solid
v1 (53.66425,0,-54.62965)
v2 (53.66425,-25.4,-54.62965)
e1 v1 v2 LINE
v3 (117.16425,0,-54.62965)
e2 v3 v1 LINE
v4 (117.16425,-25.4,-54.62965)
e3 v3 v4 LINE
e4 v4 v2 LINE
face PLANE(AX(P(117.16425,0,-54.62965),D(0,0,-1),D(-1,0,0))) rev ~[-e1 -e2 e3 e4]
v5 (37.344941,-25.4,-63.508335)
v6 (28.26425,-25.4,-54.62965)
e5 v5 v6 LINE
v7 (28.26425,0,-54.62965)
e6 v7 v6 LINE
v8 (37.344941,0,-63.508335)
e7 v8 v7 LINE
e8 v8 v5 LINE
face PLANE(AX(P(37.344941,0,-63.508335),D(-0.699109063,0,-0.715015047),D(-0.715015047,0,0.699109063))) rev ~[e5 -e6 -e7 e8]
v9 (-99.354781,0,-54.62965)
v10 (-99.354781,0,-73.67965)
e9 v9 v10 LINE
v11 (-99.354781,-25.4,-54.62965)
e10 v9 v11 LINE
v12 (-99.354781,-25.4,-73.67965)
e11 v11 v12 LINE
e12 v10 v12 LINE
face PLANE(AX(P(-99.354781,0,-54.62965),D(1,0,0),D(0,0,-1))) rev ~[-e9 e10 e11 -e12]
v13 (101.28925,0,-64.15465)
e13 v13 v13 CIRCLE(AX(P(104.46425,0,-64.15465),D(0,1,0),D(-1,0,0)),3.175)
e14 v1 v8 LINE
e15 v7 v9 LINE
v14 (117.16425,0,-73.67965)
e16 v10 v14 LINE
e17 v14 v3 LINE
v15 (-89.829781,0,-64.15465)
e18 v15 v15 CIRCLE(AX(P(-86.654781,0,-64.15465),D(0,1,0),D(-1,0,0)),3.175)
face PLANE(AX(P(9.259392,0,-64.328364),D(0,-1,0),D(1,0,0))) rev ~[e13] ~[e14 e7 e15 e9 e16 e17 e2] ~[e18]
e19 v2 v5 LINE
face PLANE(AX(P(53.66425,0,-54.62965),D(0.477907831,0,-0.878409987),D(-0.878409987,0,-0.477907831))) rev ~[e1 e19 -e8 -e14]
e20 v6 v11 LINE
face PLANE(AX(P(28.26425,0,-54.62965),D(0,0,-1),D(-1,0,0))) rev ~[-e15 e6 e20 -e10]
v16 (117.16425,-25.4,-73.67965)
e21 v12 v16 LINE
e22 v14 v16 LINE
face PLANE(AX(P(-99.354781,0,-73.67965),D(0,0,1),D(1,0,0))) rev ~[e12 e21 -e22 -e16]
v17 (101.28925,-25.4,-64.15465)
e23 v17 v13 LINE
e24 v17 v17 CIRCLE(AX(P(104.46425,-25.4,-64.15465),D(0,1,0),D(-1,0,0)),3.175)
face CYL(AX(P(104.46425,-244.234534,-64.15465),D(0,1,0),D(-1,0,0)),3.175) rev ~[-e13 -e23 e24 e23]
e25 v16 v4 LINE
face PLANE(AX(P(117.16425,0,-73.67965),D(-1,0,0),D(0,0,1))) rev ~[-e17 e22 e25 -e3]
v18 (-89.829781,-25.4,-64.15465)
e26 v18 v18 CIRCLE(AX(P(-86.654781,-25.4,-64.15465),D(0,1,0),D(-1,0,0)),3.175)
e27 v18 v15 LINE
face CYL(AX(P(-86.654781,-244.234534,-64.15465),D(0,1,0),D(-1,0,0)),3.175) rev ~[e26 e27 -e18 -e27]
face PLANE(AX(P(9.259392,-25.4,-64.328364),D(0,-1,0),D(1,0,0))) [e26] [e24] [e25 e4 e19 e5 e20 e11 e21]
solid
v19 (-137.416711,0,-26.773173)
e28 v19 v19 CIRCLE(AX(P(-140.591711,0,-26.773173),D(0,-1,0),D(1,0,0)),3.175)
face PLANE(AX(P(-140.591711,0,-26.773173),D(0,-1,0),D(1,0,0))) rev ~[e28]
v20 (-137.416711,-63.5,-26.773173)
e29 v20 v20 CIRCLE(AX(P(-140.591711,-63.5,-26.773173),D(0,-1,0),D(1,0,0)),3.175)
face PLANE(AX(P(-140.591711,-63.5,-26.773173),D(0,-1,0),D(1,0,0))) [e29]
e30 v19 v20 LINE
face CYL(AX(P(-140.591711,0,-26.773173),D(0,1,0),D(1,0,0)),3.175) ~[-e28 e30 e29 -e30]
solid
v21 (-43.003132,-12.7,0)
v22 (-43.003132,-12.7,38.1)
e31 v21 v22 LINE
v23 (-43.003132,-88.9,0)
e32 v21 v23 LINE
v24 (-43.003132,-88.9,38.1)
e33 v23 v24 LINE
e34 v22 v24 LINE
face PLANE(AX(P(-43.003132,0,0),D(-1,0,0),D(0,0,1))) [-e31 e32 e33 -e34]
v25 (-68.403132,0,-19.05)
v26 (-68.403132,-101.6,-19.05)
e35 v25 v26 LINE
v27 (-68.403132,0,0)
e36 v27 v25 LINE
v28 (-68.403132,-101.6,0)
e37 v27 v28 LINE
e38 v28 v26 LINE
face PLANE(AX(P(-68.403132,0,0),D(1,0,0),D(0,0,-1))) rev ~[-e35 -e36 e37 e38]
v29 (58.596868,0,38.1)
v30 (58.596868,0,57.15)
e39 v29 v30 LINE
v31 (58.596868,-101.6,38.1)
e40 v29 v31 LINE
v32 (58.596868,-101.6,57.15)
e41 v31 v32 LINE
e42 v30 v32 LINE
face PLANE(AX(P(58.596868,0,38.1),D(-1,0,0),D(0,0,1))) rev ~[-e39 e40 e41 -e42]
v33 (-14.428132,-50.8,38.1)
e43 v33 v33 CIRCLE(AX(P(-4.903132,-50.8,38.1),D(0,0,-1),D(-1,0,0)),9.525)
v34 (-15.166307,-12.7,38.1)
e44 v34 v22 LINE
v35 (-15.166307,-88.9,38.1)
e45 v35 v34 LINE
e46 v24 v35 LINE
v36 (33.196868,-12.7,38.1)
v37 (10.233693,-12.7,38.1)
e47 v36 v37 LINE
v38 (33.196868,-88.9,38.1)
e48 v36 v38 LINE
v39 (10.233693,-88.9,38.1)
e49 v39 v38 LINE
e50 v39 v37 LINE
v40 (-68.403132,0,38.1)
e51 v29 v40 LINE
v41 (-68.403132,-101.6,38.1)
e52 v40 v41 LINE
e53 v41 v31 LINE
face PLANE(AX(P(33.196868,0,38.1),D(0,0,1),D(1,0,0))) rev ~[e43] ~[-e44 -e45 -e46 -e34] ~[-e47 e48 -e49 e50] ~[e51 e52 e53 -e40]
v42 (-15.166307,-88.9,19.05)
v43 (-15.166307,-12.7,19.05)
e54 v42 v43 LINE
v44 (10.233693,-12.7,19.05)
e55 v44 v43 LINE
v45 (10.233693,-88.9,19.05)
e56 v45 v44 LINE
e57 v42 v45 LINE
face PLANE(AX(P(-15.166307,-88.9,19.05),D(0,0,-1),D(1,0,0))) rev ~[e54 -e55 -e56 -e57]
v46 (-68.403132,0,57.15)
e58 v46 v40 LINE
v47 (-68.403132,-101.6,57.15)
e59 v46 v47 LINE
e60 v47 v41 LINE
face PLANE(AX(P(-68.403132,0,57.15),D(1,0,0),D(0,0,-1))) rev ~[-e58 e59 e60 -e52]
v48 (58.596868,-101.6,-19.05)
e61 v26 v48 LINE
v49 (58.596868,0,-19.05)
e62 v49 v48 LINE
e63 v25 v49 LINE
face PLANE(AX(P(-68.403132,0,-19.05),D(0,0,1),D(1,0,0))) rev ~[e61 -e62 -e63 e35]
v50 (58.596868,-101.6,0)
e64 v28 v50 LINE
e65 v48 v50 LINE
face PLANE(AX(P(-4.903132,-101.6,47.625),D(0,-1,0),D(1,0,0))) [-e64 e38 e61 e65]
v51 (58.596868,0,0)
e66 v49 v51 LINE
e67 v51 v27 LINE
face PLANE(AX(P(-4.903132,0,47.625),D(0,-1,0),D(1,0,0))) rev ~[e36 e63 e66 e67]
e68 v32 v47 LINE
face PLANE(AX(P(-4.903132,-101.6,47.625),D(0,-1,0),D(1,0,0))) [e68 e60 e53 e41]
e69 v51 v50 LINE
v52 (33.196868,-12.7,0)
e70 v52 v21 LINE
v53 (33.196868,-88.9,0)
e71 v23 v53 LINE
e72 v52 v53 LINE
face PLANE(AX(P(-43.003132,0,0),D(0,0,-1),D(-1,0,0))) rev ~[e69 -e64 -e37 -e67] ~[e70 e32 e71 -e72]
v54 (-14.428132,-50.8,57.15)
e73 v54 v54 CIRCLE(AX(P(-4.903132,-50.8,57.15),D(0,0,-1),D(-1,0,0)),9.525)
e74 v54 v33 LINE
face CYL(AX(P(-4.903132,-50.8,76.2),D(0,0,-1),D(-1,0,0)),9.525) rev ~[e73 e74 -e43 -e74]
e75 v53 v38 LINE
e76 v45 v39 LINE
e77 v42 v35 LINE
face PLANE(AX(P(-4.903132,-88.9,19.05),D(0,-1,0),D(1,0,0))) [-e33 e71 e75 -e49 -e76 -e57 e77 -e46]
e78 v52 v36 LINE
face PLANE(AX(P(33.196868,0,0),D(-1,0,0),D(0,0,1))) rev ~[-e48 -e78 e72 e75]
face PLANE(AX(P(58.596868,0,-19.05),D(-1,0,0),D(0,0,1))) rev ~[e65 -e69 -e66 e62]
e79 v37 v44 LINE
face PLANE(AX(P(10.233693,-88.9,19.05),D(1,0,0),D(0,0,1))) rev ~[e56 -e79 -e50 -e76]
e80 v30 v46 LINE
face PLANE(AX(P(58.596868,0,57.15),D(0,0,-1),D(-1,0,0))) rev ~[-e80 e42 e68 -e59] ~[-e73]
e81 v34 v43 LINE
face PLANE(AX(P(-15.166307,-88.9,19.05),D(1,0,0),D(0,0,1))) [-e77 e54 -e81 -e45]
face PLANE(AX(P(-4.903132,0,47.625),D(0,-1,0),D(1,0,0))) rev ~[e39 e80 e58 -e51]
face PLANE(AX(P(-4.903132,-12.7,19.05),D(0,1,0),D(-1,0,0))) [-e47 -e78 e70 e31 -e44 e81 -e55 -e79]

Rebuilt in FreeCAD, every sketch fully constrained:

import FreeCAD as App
import Part
import Sketcher
Q = App.Units.Quantity


def add_polygon(sketch, points):
    """Adds a closed chain of lines whose ends are joined by coincident constraints."""
    first, n = sketch.GeometryCount, len(points)
    for a, b in zip(points, points[1:] + points[:1]):
        sketch.addGeometry(Part.LineSegment(App.Vector(*a, 0), App.Vector(*b, 0)), False)
    for i in range(n):
        sketch.addConstraint(Sketcher.Constraint("Coincident", first + i, 2, first + (i + 1) % n, 1))

doc = App.newDocument("Part")
body = doc.addObject("PartDesign::Body", "Body")

# Sketch on XZ plane
sketch1 = body.newObject("Sketcher::SketchObject", "Sketch")
sketch1.AttachmentSupport = (doc.getObject("XZ_Plane"), [""])
sketch1.MapMode = "FlatFace"
add_polygon(sketch1, [(59, 57), (-68, 57), (-68, 38), (-43, 38), (-43, 0), (-68, 0), (-68, -19), (59, -19), (59, 0), (33, 0), (33, 38), (59, 38)])  # lines 0-11
sketch1.addConstraint(Sketcher.Constraint("Horizontal", 0))
sketch1.addConstraint(Sketcher.Constraint("Vertical", 1))
sketch1.addConstraint(Sketcher.Constraint("Horizontal", 2))
sketch1.addConstraint(Sketcher.Constraint("Vertical", 3))
sketch1.addConstraint(Sketcher.Constraint("Horizontal", 4))
sketch1.addConstraint(Sketcher.Constraint("Vertical", 5))
sketch1.addConstraint(Sketcher.Constraint("Horizontal", 6))
sketch1.addConstraint(Sketcher.Constraint("Vertical", 7))
sketch1.addConstraint(Sketcher.Constraint("Horizontal", 8))
sketch1.addConstraint(Sketcher.Constraint("Vertical", 9))
sketch1.addConstraint(Sketcher.Constraint("Horizontal", 10))
sketch1.addConstraint(Sketcher.Constraint("Vertical", 11))
sketch1.addConstraint(Sketcher.Constraint("PointOnObject", 3, 2, -1))
sketch1.addConstraint(Sketcher.Constraint("PointOnObject", 7, 2, -1))
sketch1.addConstraint(Sketcher.Constraint("Horizontal", 2, 2, 9, 2))
sketch1.addConstraint(Sketcher.Constraint("Vertical", 1, 2, 4, 2))
sketch1.addConstraint(Sketcher.Constraint("Vertical", 7, 2, 10, 2))
sketch1.addConstraint(Sketcher.Constraint("Equal", 4, 8))
sketch1.addConstraint(Sketcher.Constraint("Equal", 1, 5))
sketch1.addConstraint(Sketcher.Constraint("DistanceX", 0, 2, 0, 1, Q("5 in")))
sketch1.addConstraint(Sketcher.Constraint("DistanceX", 2, 1, 2, 2, Q("1 in")))
sketch1.addConstraint(Sketcher.Constraint("DistanceY", 3, 2, 3, 1, Q("1.5 in")))
sketch1.addConstraint(Sketcher.Constraint("DistanceY", 5, 2, 0, 2, Q("3 in")))
sketch1.addConstraint(Sketcher.Constraint("DistanceX", 0, 2, -1, 1, 68.403132))
pad1 = body.newObject("PartDesign::Pad", "Pad")
pad1.Profile = sketch1
pad1.Length = Q("4 in")

# Sketch on XZ plane
sketch2 = body.newObject("Sketcher::SketchObject", "Sketch001")
sketch2.AttachmentSupport = (doc.getObject("XZ_Plane"), [""])
sketch2.MapMode = "FlatFace"
sketch2.AttachmentOffset = App.Placement(App.Vector(0, 0, 4 * 25.4), App.Rotation())
add_polygon(sketch2, [(-43, 38), (-43, 0), (33, 0), (33, 38)])  # lines 0-3
sketch2.addConstraint(Sketcher.Constraint("Vertical", 0))
sketch2.addConstraint(Sketcher.Constraint("Horizontal", 1))
sketch2.addConstraint(Sketcher.Constraint("Vertical", 2))
sketch2.addConstraint(Sketcher.Constraint("Horizontal", 3))
sketch2.addConstraint(Sketcher.Constraint("PointOnObject", 0, 2, -1))
sketch2.addConstraint(Sketcher.Constraint("DistanceX", 1, 1, 1, 2, Q("3 in")))
sketch2.addConstraint(Sketcher.Constraint("DistanceY", 0, 2, 0, 1, Q("1.5 in")))
sketch2.addConstraint(Sketcher.Constraint("DistanceX", -1, 1, 1, 2, 33.196868))
pocket1 = body.newObject("PartDesign::Pocket", "Pocket")
pocket1.Profile = sketch2
pocket1.Length = Q("0.5 in")

# Sketch on XZ plane
sketch3 = body.newObject("Sketcher::SketchObject", "Sketch002")
sketch3.AttachmentSupport = (doc.getObject("XZ_Plane"), [""])
sketch3.MapMode = "FlatFace"
add_polygon(sketch3, [(33, 38), (33, 0), (-43, 0), (-43, 38)])  # lines 0-3
sketch3.addConstraint(Sketcher.Constraint("Vertical", 0))
sketch3.addConstraint(Sketcher.Constraint("Horizontal", 1))
sketch3.addConstraint(Sketcher.Constraint("Vertical", 2))
sketch3.addConstraint(Sketcher.Constraint("Horizontal", 3))
sketch3.addConstraint(Sketcher.Constraint("PointOnObject", 0, 2, -1))
sketch3.addConstraint(Sketcher.Constraint("DistanceX", 1, 2, 1, 1, Q("3 in")))
sketch3.addConstraint(Sketcher.Constraint("DistanceY", 0, 2, 0, 1, Q("1.5 in")))
sketch3.addConstraint(Sketcher.Constraint("DistanceX", -1, 1, 0, 2, 33.196868))
pocket2 = body.newObject("PartDesign::Pocket", "Pocket001")
pocket2.Profile = sketch3
pocket2.Length = Q("0.5 in")
pocket2.Reversed = True

# Sketch on XZ plane
sketch4 = body.newObject("Sketcher::SketchObject", "Sketch003")
sketch4.AttachmentSupport = (doc.getObject("XZ_Plane"), [""])
sketch4.MapMode = "FlatFace"
sketch4.AttachmentOffset = App.Placement(App.Vector(0, 0, 3.5 * 25.4), App.Rotation())
add_polygon(sketch4, [(-15, 38), (-15, 19), (10, 19), (10, 38)])  # lines 0-3
sketch4.addConstraint(Sketcher.Constraint("Vertical", 0))
sketch4.addConstraint(Sketcher.Constraint("Horizontal", 1))
sketch4.addConstraint(Sketcher.Constraint("Vertical", 2))
sketch4.addConstraint(Sketcher.Constraint("Horizontal", 3))
sketch4.addConstraint(Sketcher.Constraint("DistanceX", 1, 1, 1, 2, Q("1 in")))
sketch4.addConstraint(Sketcher.Constraint("DistanceY", 0, 2, 0, 1, Q("0.75 in")))
sketch4.addConstraint(Sketcher.Constraint("DistanceY", -1, 1, 2, 2, Q("1.5 in")))
sketch4.addConstraint(Sketcher.Constraint("DistanceX", 0, 2, -1, 1, 15.166307))
pocket3 = body.newObject("PartDesign::Pocket", "Pocket002")
pocket3.Profile = sketch4
pocket3.Type = "ThroughAll"

# Sketch on XY plane
sketch5 = body.newObject("Sketcher::SketchObject", "Sketch004")
sketch5.AttachmentSupport = (doc.getObject("XY_Plane"), [""])
sketch5.MapMode = "FlatFace"
sketch5.AttachmentOffset = App.Placement(App.Vector(0, 0, 2.25 * 25.4), App.Rotation())
sketch5.addGeometry(Part.Circle(App.Vector(-5, -51, 0), App.Vector(0, 0, 1), 10), False)
sketch5.addConstraint(Sketcher.Constraint("Diameter", 0, Q("0.75 in")))
sketch5.addConstraint(Sketcher.Constraint("DistanceY", 0, 3, -1, 1, Q("2 in")))
sketch5.addConstraint(Sketcher.Constraint("DistanceX", 0, 3, -1, 1, 4.903132))
doc.recompute()
hole = body.newObject("PartDesign::Hole", "Hole")
hole.Profile = sketch5
hole.ThreadType = "None"
hole.Diameter = Q("0.75 in")
hole.DepthType = "Dimension"
hole.Depth = Q("0.75 in")
hole.DrillPoint = "Flat"
body2 = doc.addObject("PartDesign::Body", "Body001")

# Sketch on XZ plane
sketch6 = body2.newObject("Sketcher::SketchObject", "Sketch005")
sketch6.AttachmentSupport = (doc.getObject("XZ_Plane001"), [""])
sketch6.MapMode = "FlatFace"
add_polygon(sketch6, [(117, -74), (117, -55), (54, -55), (37, -64), (28, -55), (-99, -55), (-99, -74)])  # lines 0-6
sketch6.addConstraint(Sketcher.Constraint("Vertical", 0))
sketch6.addConstraint(Sketcher.Constraint("Horizontal", 1))
sketch6.addConstraint(Sketcher.Constraint("Horizontal", 4))
sketch6.addConstraint(Sketcher.Constraint("Vertical", 5))
sketch6.addConstraint(Sketcher.Constraint("Horizontal", 6))
sketch6.addConstraint(Sketcher.Constraint("Horizontal", 1, 2, 3, 2))
sketch6.addConstraint(Sketcher.Constraint("DistanceX", 1, 2, 1, 1, Q("2.5 in")))
sketch6.addConstraint(Sketcher.Constraint("DistanceX", 3, 2, 1, 2, Q("1 in")))
sketch6.addConstraint(Sketcher.Constraint("Distance", 3, Q("0.5 in")))
sketch6.addConstraint(Sketcher.Constraint("DistanceY", 0, 1, 0, 2, Q("0.75 in")))
sketch6.addConstraint(Sketcher.Constraint("DistanceX", 4, 2, 4, 1, 127.619031))
sketch6.addConstraint(Sketcher.Constraint("DistanceX", -1, 1, 0, 2, 117.16425))
sketch6.addConstraint(Sketcher.Constraint("DistanceY", 0, 2, -1, 1, 54.62965))
sketch6.addConstraint(Sketcher.Constraint("DistanceX", -1, 1, 2, 2, 37.344941))
pad2 = body2.newObject("PartDesign::Pad", "Pad001")
pad2.Profile = sketch6
pad2.Length = Q("1 in")

# Sketch on XZ plane
sketch7 = body2.newObject("Sketcher::SketchObject", "Sketch006")
sketch7.AttachmentSupport = (doc.getObject("XZ_Plane001"), [""])
sketch7.MapMode = "FlatFace"
sketch7.AttachmentOffset = App.Placement(App.Vector(0, 0, 1 * 25.4), App.Rotation())
sketch7.addGeometry(Part.Circle(App.Vector(-86.7, -64.2, 0), App.Vector(0, 0, 1), 3.2), False)
sketch7.addGeometry(Part.Circle(App.Vector(104.5, -64.2, 0), App.Vector(0, 0, 1), 3.2), False)
sketch7.addConstraint(Sketcher.Constraint("Equal", 0, 1))
sketch7.addConstraint(Sketcher.Constraint("Horizontal", 0, 3, 1, 3))
sketch7.addConstraint(Sketcher.Constraint("Diameter", 0, Q("0.25 in")))
sketch7.addConstraint(Sketcher.Constraint("DistanceX", 0, 3, -1, 1, 86.654781))
sketch7.addConstraint(Sketcher.Constraint("DistanceY", 0, 3, -1, 1, 64.15465))
sketch7.addConstraint(Sketcher.Constraint("DistanceX", -1, 1, 1, 3, 104.46425))
doc.recompute()
hole2 = body2.newObject("PartDesign::Hole", "Hole001")
hole2.Profile = sketch7
hole2.ThreadType = "None"
hole2.Diameter = Q("0.25 in")
hole2.DepthType = "ThroughAll"
body3 = doc.addObject("PartDesign::Body", "Body002")

# Sketch on XZ plane
sketch8 = body3.newObject("Sketcher::SketchObject", "Sketch007")
sketch8.AttachmentSupport = (doc.getObject("XZ_Plane002"), [""])
sketch8.MapMode = "FlatFace"
sketch8.addGeometry(Part.Circle(App.Vector(-140.6, -26.8, 0), App.Vector(0, 0, 1), 3.2), False)
sketch8.addConstraint(Sketcher.Constraint("Diameter", 0, Q("0.25 in")))
sketch8.addConstraint(Sketcher.Constraint("DistanceX", 0, 3, -1, 1, 140.591711))
sketch8.addConstraint(Sketcher.Constraint("DistanceY", 0, 3, -1, 1, 26.773173))
pad3 = body3.newObject("PartDesign::Pad", "Pad002")
pad3.Profile = sketch8
pad3.Length = Q("2.5 in")

doc.recompute()
